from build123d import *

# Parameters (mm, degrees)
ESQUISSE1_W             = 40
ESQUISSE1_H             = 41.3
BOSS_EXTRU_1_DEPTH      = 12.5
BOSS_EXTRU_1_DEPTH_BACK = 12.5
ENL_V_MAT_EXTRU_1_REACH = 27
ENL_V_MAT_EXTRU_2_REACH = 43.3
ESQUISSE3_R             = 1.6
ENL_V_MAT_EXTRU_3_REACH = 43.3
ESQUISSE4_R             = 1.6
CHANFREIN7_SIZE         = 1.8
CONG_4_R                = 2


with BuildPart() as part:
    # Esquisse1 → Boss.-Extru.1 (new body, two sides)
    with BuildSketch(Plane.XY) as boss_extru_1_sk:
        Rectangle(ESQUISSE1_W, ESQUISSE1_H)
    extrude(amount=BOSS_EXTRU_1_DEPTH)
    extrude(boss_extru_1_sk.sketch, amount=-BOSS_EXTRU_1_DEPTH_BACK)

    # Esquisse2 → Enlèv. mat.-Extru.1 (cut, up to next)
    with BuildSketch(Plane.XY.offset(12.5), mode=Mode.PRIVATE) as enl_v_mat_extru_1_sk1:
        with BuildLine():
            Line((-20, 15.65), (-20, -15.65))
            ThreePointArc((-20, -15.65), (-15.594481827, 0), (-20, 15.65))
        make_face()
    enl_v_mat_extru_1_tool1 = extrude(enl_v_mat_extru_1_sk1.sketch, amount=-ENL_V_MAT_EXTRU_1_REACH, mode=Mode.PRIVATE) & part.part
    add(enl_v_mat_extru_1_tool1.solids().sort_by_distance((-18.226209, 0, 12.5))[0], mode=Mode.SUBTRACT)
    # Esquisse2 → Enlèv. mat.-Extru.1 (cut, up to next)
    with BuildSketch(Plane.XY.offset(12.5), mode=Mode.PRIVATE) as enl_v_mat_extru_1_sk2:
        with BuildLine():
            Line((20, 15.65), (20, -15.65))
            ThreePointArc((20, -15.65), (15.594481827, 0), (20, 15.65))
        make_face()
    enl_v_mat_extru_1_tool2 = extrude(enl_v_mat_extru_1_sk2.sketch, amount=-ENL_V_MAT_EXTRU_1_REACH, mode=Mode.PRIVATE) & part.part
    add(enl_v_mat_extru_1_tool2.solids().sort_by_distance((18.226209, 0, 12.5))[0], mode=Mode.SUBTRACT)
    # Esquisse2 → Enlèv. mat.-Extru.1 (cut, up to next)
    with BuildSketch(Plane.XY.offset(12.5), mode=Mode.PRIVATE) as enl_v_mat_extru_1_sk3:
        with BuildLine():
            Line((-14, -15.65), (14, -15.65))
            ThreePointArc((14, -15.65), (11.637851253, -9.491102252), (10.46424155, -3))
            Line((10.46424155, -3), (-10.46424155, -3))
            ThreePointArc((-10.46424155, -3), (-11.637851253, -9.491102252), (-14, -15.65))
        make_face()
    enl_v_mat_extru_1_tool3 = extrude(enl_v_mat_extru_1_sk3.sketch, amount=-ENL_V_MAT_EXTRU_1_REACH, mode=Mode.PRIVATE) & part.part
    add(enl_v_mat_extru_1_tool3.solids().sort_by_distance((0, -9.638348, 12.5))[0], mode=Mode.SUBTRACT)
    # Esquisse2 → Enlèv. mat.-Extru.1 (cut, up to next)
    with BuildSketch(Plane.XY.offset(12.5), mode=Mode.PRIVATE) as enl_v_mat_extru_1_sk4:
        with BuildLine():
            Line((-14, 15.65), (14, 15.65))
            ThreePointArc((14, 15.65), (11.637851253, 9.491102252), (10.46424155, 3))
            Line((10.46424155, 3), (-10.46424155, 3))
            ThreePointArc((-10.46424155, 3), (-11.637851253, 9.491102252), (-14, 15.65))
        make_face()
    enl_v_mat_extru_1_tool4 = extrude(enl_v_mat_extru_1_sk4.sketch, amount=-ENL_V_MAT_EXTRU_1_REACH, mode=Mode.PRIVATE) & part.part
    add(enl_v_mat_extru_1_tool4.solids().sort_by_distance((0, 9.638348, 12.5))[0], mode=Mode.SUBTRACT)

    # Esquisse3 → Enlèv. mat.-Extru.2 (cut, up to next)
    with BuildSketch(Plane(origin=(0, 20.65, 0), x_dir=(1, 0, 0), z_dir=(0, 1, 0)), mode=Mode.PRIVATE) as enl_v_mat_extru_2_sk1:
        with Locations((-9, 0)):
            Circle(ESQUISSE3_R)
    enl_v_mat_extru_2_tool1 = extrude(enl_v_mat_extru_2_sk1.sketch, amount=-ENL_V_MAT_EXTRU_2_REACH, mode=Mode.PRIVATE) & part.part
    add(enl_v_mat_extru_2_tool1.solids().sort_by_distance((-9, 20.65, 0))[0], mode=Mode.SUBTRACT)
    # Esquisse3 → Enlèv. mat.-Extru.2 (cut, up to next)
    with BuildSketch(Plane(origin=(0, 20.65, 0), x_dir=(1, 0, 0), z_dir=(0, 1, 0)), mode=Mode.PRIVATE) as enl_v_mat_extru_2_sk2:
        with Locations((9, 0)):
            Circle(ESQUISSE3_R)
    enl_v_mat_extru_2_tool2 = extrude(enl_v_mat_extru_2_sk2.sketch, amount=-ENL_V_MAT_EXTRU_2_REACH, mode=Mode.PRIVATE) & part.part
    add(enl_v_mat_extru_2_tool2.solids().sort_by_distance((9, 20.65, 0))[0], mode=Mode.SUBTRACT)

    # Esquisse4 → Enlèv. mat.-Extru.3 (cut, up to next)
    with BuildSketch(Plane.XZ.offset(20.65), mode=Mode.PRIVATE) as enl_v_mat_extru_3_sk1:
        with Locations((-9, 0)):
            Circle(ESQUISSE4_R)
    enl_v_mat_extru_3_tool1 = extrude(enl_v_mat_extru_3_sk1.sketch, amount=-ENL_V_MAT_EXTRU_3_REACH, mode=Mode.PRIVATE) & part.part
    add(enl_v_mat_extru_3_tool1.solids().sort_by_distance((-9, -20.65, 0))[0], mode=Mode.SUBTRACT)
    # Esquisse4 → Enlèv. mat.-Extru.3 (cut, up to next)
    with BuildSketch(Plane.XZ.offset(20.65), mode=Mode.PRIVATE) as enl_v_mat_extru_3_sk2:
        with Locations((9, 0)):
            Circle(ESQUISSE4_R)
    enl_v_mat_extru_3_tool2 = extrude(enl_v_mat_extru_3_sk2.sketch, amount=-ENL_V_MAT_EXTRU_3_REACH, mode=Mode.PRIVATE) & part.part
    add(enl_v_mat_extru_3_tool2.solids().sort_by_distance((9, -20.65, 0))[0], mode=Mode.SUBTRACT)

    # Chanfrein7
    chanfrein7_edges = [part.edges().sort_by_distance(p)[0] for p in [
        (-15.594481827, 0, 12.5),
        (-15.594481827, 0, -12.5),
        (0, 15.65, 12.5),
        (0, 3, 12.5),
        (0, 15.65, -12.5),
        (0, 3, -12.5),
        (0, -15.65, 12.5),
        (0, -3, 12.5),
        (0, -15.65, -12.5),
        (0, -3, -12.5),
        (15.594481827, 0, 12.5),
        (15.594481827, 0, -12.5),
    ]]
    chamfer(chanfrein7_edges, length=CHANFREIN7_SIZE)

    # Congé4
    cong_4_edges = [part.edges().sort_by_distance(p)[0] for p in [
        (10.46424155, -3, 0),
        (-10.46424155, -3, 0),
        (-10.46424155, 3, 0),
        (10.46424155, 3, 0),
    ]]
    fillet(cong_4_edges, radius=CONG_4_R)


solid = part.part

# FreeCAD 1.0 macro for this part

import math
import FreeCAD as App
import Part
import Sketcher

V = App.Vector
Q = App.Units.Quantity


def edges_at(feature, points):
    """Names of the edges that pass closest to the given points."""
    edges = feature.Shape.Edges
    near = lambda p: min(range(len(edges)), key=lambda i: edges[i].distToShape(Part.Vertex(*p))[0])
    return sorted({f"Edge{near(p) + 1}" for p in points})


def add_polygon(sketch, points):
    """Adds a closed chain of lines whose ends are joined by coincident constraints."""
    first, n = sketch.GeometryCount, len(points)
    for a, b in zip(points, points[1:] + points[:1]):
        sketch.addGeometry(Part.LineSegment(App.Vector(*a, 0), App.Vector(*b, 0)), False)
    for i in range(n):
        sketch.addConstraint(Sketcher.Constraint("Coincident", first + i, 2, first + (i + 1) % n, 1))

doc = App.newDocument("Part")
params = doc.addObject("Spreadsheet::Sheet", "Params")
for row, (alias, value) in enumerate([
    ("sketch1_width", "40 mm"),
    ("sketch1_height", "41.3 mm"),
    ("pad1_length", "12.5 mm"),
    ("pad1_length2", "12.5 mm"),
    ("sketch2_radius", "30 mm"),
    ("sketch2_height", "31.3 mm"),
    ("sketch3_radius", "30 mm"),
    ("sketch3_height", "31.3 mm"),
    ("sketch4_width", "28 mm"),
    ("sketch5_width", "28 mm"),
    ("sketch6_diameter", "3.2 mm"),
    ("sketch7_diameter", "3.2 mm"),
    ("sketch8_diameter", "3.2 mm"),
    ("sketch9_diameter", "3.2 mm"),
    ("chamfer_size", "1.8 mm"),
    ("fillet_radius", "2 mm"),
], start=1):
    params.set(f"A{row}", alias)
    params.set(f"B{row}", "=" + value)
    params.setAlias(f"B{row}", alias)

body = doc.addObject("PartDesign::Body", "Body")

# Sketch on XY plane
sketch1 = doc.addObject("Sketcher::SketchObject", "Sketch")
body.addObject(sketch1)
sketch1.AttachmentSupport = (doc.XY_Plane, [""])
sketch1.MapMode = "FlatFace"
add_polygon(sketch1, [(-20, 21), (-20, -21), (20, -21), (20, 21)])  # lines 0-3
sketch1.addConstraint(Sketcher.Constraint("Vertical", 0))
sketch1.addConstraint(Sketcher.Constraint("Horizontal", 1))
sketch1.addConstraint(Sketcher.Constraint("Vertical", 2))
sketch1.addConstraint(Sketcher.Constraint("Horizontal", 3))
sketch1.addConstraint(Sketcher.Constraint("Symmetric", 0, 2, 2, 2, -1, 1))
sketch1.addConstraint(Sketcher.Constraint("DistanceX", 1, 1, 1, 2, Q("40 mm")))
sketch1.addConstraint(Sketcher.Constraint("DistanceY", 0, 2, 0, 1, Q("41.3 mm")))
sketch1.setExpression("Constraints[9]", "Params.sketch1_width")
sketch1.setExpression("Constraints[10]", "Params.sketch1_height")
pad1 = doc.addObject("PartDesign::Pad", "Pad")
body.addObject(pad1)
pad1.Profile = sketch1
pad1.Type = "TwoLengths"
pad1.setExpression("Length", "Params.pad1_length")
pad1.setExpression("Length2", "Params.pad1_length2")

# Sketch on XY plane
sketch2 = doc.addObject("Sketcher::SketchObject", "Sketch001")
body.addObject(sketch2)
sketch2.AttachmentSupport = (doc.XY_Plane, [""])
sketch2.MapMode = "FlatFace"
sketch2.AttachmentOffset = App.Placement(V(0, 0, 12.5), App.Rotation())
sketch2.addGeometry(Part.LineSegment(V(-20, 16, 0), V(-20, -16, 0)), False)
sketch2.addGeometry(Part.ArcOfCircle(Part.Circle(V(-46, 0, 0), V(0, 0, 1), 30), math.radians(-31), math.radians(31)), False)
sketch2.addConstraint(Sketcher.Constraint("Coincident", 0, 1, 1, 2))
sketch2.addConstraint(Sketcher.Constraint("Coincident", 1, 1, 0, 2))
sketch2.addConstraint(Sketcher.Constraint("Vertical", 0))
sketch2.addConstraint(Sketcher.Constraint("PointOnObject", 1, 3, -1))
sketch2.addConstraint(Sketcher.Constraint("Radius", 1, Q("30 mm")))
sketch2.addConstraint(Sketcher.Constraint("DistanceY", 0, 2, 0, 1, Q("31.3 mm")))
sketch2.addConstraint(Sketcher.Constraint("DistanceX", 0, 1, -1, 1, Q("20 mm")))
sketch2.setExpression("Constraints[4]", "Params.sketch2_radius")
sketch2.setExpression("Constraints[5]", "Params.sketch2_height")
pocket1 = doc.addObject("PartDesign::Pocket", "Pocket")
body.addObject(pocket1)
pocket1.Profile = sketch2
pocket1.Type = "UpToFirst"

# Sketch on XY plane
sketch3 = doc.addObject("Sketcher::SketchObject", "Sketch002")
body.addObject(sketch3)
sketch3.AttachmentSupport = (doc.XY_Plane, [""])
sketch3.MapMode = "FlatFace"
sketch3.AttachmentOffset = App.Placement(V(0, 0, 12.5), App.Rotation())
sketch3.addGeometry(Part.LineSegment(V(20, -16, 0), V(20, 16, 0)), False)
sketch3.addGeometry(Part.ArcOfCircle(Part.Circle(V(46, 0, 0), V(0, 0, 1), 30), math.radians(149), math.radians(211)), False)
sketch3.addConstraint(Sketcher.Constraint("Coincident", 0, 1, 1, 2))
sketch3.addConstraint(Sketcher.Constraint("Coincident", 1, 1, 0, 2))
sketch3.addConstraint(Sketcher.Constraint("Vertical", 0))
sketch3.addConstraint(Sketcher.Constraint("PointOnObject", 1, 3, -1))
sketch3.addConstraint(Sketcher.Constraint("Radius", 1, Q("30 mm")))
sketch3.addConstraint(Sketcher.Constraint("DistanceY", 0, 1, 0, 2, Q("31.3 mm")))
sketch3.addConstraint(Sketcher.Constraint("DistanceX", -1, 1, 0, 1, Q("20 mm")))
sketch3.setExpression("Constraints[4]", "Params.sketch3_radius")
sketch3.setExpression("Constraints[5]", "Params.sketch3_height")
pocket2 = doc.addObject("PartDesign::Pocket", "Pocket001")
body.addObject(pocket2)
pocket2.Profile = sketch3
pocket2.Type = "UpToFirst"

# Sketch on XY plane
sketch4 = doc.addObject("Sketcher::SketchObject", "Sketch003")
body.addObject(sketch4)
sketch4.AttachmentSupport = (doc.XY_Plane, [""])
sketch4.MapMode = "FlatFace"
sketch4.AttachmentOffset = App.Placement(V(0, 0, 12.5), App.Rotation())
sketch4.addGeometry(Part.LineSegment(V(-14, -16, 0), V(14, -16, 0)), False)
sketch4.addGeometry(Part.ArcOfCircle(Part.Circle(V(46, 0, 0), V(0, 0, 1), 35), math.radians(-175), math.radians(-154)), False)
sketch4.addGeometry(Part.LineSegment(V(10, -3, 0), V(-10, -3, 0)), False)
sketch4.addGeometry(Part.ArcOfCircle(Part.Circle(V(-46, 0, 0), V(0, 0, 1), 35), math.radians(-26), math.radians(-5)), False)
sketch4.addConstraint(Sketcher.Constraint("Coincident", 0, 2, 1, 2))
sketch4.addConstraint(Sketcher.Constraint("Coincident", 1, 1, 2, 1))
sketch4.addConstraint(Sketcher.Constraint("Coincident", 2, 2, 3, 2))
sketch4.addConstraint(Sketcher.Constraint("Coincident", 3, 1, 0, 1))
sketch4.addConstraint(Sketcher.Constraint("Horizontal", 0))
sketch4.addConstraint(Sketcher.Constraint("Horizontal", 2))
sketch4.addConstraint(Sketcher.Constraint("Equal", 1, 3))
sketch4.addConstraint(Sketcher.Constraint("Symmetric", 1, 3, 3, 3, -1, 1))
sketch4.addConstraint(Sketcher.Constraint("PointOnObject", 1, 3, -1))
sketch4.addConstraint(Sketcher.Constraint("DistanceX", 0, 1, 0, 2, Q("28 mm")))
sketch4.addConstraint(Sketcher.Constraint("DistanceY", 1, 1, -1, 1, Q("3 mm")))
sketch4.addConstraint(Sketcher.Constraint("DistanceY", 0, 2, -1, 1, Q("15.65 mm")))
sketch4.addConstraint(Sketcher.Constraint("Radius", 1, Q("35.258102 mm")))
sketch4.setExpression("Constraints[9]", "Params.sketch4_width")
pocket3 = doc.addObject("PartDesign::Pocket", "Pocket002")
body.addObject(pocket3)
pocket3.Profile = sketch4
pocket3.Type = "UpToFirst"

# Sketch on XY plane
sketch5 = doc.addObject("Sketcher::SketchObject", "Sketch004")
body.addObject(sketch5)
sketch5.AttachmentSupport = (doc.XY_Plane, [""])
sketch5.MapMode = "FlatFace"
sketch5.AttachmentOffset = App.Placement(V(0, 0, 12.5), App.Rotation())
sketch5.addGeometry(Part.LineSegment(V(14, 16, 0), V(-14, 16, 0)), False)
sketch5.addGeometry(Part.ArcOfCircle(Part.Circle(V(-46, 0, 0), V(0, 0, 1), 35), math.radians(5), math.radians(26)), False)
sketch5.addGeometry(Part.LineSegment(V(-10, 3, 0), V(10, 3, 0)), False)
sketch5.addGeometry(Part.ArcOfCircle(Part.Circle(V(46, 0, 0), V(0, 0, 1), 35), math.radians(154), math.radians(175)), False)
sketch5.addConstraint(Sketcher.Constraint("Coincident", 0, 2, 1, 2))
sketch5.addConstraint(Sketcher.Constraint("Coincident", 1, 1, 2, 1))
sketch5.addConstraint(Sketcher.Constraint("Coincident", 2, 2, 3, 2))
sketch5.addConstraint(Sketcher.Constraint("Coincident", 3, 1, 0, 1))
sketch5.addConstraint(Sketcher.Constraint("Horizontal", 0))
sketch5.addConstraint(Sketcher.Constraint("Horizontal", 2))
sketch5.addConstraint(Sketcher.Constraint("Equal", 1, 3))
sketch5.addConstraint(Sketcher.Constraint("Symmetric", 1, 3, 3, 3, -1, 1))
sketch5.addConstraint(Sketcher.Constraint("PointOnObject", 1, 3, -1))
sketch5.addConstraint(Sketcher.Constraint("DistanceX", 0, 2, 0, 1, Q("28 mm")))
sketch5.addConstraint(Sketcher.Constraint("DistanceY", -1, 1, 1, 1, Q("3 mm")))
sketch5.addConstraint(Sketcher.Constraint("DistanceY", -1, 1, 0, 2, Q("15.65 mm")))
sketch5.addConstraint(Sketcher.Constraint("Radius", 1, Q("35.258102 mm")))
sketch5.setExpression("Constraints[9]", "Params.sketch5_width")
pocket4 = doc.addObject("PartDesign::Pocket", "Pocket003")
body.addObject(pocket4)
pocket4.Profile = sketch5
pocket4.Type = "UpToFirst"

# Sketch on XZ plane
sketch6 = doc.addObject("Sketcher::SketchObject", "Sketch005")
body.addObject(sketch6)
sketch6.AttachmentSupport = (doc.XZ_Plane, [""])
sketch6.MapMode = "FlatFace"
sketch6.AttachmentOffset = App.Placement(V(0, 0, -20.65), App.Rotation())
sketch6.addGeometry(Part.Circle(V(-9, 0, 0), V(0, 0, 1), 1.6), False)
sketch6.addConstraint(Sketcher.Constraint("PointOnObject", 0, 3, -1))
sketch6.addConstraint(Sketcher.Constraint("Diameter", 0, Q("3.2 mm")))
sketch6.addConstraint(Sketcher.Constraint("DistanceX", 0, 3, -1, 1, Q("9 mm")))
sketch6.setExpression("Constraints[1]", "Params.sketch6_diameter")
pocket5 = doc.addObject("PartDesign::Pocket", "Pocket004")
body.addObject(pocket5)
pocket5.Profile = sketch6
pocket5.Type = "UpToFirst"
pocket5.Reversed = True

# Sketch on XZ plane
sketch7 = doc.addObject("Sketcher::SketchObject", "Sketch006")
body.addObject(sketch7)
sketch7.AttachmentSupport = (doc.XZ_Plane, [""])
sketch7.MapMode = "FlatFace"
sketch7.AttachmentOffset = App.Placement(V(0, 0, -20.65), App.Rotation())
sketch7.addGeometry(Part.Circle(V(9, 0, 0), V(0, 0, 1), 1.6), False)
sketch7.addConstraint(Sketcher.Constraint("PointOnObject", 0, 3, -1))
sketch7.addConstraint(Sketcher.Constraint("Diameter", 0, Q("3.2 mm")))
sketch7.addConstraint(Sketcher.Constraint("DistanceX", -1, 1, 0, 3, Q("9 mm")))
sketch7.setExpression("Constraints[1]", "Params.sketch7_diameter")
pocket6 = doc.addObject("PartDesign::Pocket", "Pocket005")
body.addObject(pocket6)
pocket6.Profile = sketch7
pocket6.Type = "UpToFirst"
pocket6.Reversed = True

# Sketch on XZ plane
sketch8 = doc.addObject("Sketcher::SketchObject", "Sketch007")
body.addObject(sketch8)
sketch8.AttachmentSupport = (doc.XZ_Plane, [""])
sketch8.MapMode = "FlatFace"
sketch8.AttachmentOffset = App.Placement(V(0, 0, 20.65), App.Rotation())
sketch8.addGeometry(Part.Circle(V(-9, 0, 0), V(0, 0, 1), 1.6), False)
sketch8.addConstraint(Sketcher.Constraint("PointOnObject", 0, 3, -1))
sketch8.addConstraint(Sketcher.Constraint("Diameter", 0, Q("3.2 mm")))
sketch8.addConstraint(Sketcher.Constraint("DistanceX", 0, 3, -1, 1, Q("9 mm")))
sketch8.setExpression("Constraints[1]", "Params.sketch8_diameter")
pocket7 = doc.addObject("PartDesign::Pocket", "Pocket006")
body.addObject(pocket7)
pocket7.Profile = sketch8
pocket7.Type = "UpToFirst"

# Sketch on XZ plane
sketch9 = doc.addObject("Sketcher::SketchObject", "Sketch008")
body.addObject(sketch9)
sketch9.AttachmentSupport = (doc.XZ_Plane, [""])
sketch9.MapMode = "FlatFace"
sketch9.AttachmentOffset = App.Placement(V(0, 0, 20.65), App.Rotation())
sketch9.addGeometry(Part.Circle(V(9, 0, 0), V(0, 0, 1), 1.6), False)
sketch9.addConstraint(Sketcher.Constraint("PointOnObject", 0, 3, -1))
sketch9.addConstraint(Sketcher.Constraint("Diameter", 0, Q("3.2 mm")))
sketch9.addConstraint(Sketcher.Constraint("DistanceX", -1, 1, 0, 3, Q("9 mm")))
sketch9.setExpression("Constraints[1]", "Params.sketch9_diameter")
pocket8 = doc.addObject("PartDesign::Pocket", "Pocket007")
body.addObject(pocket8)
pocket8.Profile = sketch9
pocket8.Type = "UpToFirst"
doc.recompute()

chamfer = doc.addObject("PartDesign::Chamfer", "Chamfer")
body.addObject(chamfer)
chamfer.Base = (pocket8, edges_at(pocket8, [
    (-15.594, 0, 12.5),
    (-15.594, 0, -12.5),
    (0, 15.65, 12.5),
    (0, 3, 12.5),
    (0, 15.65, -12.5),
    (0, 3, -12.5),
    (0, -15.65, 12.5),
    (0, -3, 12.5),
    (0, -15.65, -12.5),
    (0, -3, -12.5),
    (15.594, 0, 12.5),
    (15.594, 0, -12.5),
]))
chamfer.setExpression("Size", "Params.chamfer_size")
doc.recompute()

fillet = doc.addObject("PartDesign::Fillet", "Fillet")
body.addObject(fillet)
fillet.Base = (chamfer, edges_at(chamfer, [
    (10.464, -3, 0),
    (-10.464, -3, 0),
    (-10.464, 3, 0),
    (10.464, 3, 0),
]))
fillet.setExpression("Radius", "Params.fillet_radius")

doc.recompute()
